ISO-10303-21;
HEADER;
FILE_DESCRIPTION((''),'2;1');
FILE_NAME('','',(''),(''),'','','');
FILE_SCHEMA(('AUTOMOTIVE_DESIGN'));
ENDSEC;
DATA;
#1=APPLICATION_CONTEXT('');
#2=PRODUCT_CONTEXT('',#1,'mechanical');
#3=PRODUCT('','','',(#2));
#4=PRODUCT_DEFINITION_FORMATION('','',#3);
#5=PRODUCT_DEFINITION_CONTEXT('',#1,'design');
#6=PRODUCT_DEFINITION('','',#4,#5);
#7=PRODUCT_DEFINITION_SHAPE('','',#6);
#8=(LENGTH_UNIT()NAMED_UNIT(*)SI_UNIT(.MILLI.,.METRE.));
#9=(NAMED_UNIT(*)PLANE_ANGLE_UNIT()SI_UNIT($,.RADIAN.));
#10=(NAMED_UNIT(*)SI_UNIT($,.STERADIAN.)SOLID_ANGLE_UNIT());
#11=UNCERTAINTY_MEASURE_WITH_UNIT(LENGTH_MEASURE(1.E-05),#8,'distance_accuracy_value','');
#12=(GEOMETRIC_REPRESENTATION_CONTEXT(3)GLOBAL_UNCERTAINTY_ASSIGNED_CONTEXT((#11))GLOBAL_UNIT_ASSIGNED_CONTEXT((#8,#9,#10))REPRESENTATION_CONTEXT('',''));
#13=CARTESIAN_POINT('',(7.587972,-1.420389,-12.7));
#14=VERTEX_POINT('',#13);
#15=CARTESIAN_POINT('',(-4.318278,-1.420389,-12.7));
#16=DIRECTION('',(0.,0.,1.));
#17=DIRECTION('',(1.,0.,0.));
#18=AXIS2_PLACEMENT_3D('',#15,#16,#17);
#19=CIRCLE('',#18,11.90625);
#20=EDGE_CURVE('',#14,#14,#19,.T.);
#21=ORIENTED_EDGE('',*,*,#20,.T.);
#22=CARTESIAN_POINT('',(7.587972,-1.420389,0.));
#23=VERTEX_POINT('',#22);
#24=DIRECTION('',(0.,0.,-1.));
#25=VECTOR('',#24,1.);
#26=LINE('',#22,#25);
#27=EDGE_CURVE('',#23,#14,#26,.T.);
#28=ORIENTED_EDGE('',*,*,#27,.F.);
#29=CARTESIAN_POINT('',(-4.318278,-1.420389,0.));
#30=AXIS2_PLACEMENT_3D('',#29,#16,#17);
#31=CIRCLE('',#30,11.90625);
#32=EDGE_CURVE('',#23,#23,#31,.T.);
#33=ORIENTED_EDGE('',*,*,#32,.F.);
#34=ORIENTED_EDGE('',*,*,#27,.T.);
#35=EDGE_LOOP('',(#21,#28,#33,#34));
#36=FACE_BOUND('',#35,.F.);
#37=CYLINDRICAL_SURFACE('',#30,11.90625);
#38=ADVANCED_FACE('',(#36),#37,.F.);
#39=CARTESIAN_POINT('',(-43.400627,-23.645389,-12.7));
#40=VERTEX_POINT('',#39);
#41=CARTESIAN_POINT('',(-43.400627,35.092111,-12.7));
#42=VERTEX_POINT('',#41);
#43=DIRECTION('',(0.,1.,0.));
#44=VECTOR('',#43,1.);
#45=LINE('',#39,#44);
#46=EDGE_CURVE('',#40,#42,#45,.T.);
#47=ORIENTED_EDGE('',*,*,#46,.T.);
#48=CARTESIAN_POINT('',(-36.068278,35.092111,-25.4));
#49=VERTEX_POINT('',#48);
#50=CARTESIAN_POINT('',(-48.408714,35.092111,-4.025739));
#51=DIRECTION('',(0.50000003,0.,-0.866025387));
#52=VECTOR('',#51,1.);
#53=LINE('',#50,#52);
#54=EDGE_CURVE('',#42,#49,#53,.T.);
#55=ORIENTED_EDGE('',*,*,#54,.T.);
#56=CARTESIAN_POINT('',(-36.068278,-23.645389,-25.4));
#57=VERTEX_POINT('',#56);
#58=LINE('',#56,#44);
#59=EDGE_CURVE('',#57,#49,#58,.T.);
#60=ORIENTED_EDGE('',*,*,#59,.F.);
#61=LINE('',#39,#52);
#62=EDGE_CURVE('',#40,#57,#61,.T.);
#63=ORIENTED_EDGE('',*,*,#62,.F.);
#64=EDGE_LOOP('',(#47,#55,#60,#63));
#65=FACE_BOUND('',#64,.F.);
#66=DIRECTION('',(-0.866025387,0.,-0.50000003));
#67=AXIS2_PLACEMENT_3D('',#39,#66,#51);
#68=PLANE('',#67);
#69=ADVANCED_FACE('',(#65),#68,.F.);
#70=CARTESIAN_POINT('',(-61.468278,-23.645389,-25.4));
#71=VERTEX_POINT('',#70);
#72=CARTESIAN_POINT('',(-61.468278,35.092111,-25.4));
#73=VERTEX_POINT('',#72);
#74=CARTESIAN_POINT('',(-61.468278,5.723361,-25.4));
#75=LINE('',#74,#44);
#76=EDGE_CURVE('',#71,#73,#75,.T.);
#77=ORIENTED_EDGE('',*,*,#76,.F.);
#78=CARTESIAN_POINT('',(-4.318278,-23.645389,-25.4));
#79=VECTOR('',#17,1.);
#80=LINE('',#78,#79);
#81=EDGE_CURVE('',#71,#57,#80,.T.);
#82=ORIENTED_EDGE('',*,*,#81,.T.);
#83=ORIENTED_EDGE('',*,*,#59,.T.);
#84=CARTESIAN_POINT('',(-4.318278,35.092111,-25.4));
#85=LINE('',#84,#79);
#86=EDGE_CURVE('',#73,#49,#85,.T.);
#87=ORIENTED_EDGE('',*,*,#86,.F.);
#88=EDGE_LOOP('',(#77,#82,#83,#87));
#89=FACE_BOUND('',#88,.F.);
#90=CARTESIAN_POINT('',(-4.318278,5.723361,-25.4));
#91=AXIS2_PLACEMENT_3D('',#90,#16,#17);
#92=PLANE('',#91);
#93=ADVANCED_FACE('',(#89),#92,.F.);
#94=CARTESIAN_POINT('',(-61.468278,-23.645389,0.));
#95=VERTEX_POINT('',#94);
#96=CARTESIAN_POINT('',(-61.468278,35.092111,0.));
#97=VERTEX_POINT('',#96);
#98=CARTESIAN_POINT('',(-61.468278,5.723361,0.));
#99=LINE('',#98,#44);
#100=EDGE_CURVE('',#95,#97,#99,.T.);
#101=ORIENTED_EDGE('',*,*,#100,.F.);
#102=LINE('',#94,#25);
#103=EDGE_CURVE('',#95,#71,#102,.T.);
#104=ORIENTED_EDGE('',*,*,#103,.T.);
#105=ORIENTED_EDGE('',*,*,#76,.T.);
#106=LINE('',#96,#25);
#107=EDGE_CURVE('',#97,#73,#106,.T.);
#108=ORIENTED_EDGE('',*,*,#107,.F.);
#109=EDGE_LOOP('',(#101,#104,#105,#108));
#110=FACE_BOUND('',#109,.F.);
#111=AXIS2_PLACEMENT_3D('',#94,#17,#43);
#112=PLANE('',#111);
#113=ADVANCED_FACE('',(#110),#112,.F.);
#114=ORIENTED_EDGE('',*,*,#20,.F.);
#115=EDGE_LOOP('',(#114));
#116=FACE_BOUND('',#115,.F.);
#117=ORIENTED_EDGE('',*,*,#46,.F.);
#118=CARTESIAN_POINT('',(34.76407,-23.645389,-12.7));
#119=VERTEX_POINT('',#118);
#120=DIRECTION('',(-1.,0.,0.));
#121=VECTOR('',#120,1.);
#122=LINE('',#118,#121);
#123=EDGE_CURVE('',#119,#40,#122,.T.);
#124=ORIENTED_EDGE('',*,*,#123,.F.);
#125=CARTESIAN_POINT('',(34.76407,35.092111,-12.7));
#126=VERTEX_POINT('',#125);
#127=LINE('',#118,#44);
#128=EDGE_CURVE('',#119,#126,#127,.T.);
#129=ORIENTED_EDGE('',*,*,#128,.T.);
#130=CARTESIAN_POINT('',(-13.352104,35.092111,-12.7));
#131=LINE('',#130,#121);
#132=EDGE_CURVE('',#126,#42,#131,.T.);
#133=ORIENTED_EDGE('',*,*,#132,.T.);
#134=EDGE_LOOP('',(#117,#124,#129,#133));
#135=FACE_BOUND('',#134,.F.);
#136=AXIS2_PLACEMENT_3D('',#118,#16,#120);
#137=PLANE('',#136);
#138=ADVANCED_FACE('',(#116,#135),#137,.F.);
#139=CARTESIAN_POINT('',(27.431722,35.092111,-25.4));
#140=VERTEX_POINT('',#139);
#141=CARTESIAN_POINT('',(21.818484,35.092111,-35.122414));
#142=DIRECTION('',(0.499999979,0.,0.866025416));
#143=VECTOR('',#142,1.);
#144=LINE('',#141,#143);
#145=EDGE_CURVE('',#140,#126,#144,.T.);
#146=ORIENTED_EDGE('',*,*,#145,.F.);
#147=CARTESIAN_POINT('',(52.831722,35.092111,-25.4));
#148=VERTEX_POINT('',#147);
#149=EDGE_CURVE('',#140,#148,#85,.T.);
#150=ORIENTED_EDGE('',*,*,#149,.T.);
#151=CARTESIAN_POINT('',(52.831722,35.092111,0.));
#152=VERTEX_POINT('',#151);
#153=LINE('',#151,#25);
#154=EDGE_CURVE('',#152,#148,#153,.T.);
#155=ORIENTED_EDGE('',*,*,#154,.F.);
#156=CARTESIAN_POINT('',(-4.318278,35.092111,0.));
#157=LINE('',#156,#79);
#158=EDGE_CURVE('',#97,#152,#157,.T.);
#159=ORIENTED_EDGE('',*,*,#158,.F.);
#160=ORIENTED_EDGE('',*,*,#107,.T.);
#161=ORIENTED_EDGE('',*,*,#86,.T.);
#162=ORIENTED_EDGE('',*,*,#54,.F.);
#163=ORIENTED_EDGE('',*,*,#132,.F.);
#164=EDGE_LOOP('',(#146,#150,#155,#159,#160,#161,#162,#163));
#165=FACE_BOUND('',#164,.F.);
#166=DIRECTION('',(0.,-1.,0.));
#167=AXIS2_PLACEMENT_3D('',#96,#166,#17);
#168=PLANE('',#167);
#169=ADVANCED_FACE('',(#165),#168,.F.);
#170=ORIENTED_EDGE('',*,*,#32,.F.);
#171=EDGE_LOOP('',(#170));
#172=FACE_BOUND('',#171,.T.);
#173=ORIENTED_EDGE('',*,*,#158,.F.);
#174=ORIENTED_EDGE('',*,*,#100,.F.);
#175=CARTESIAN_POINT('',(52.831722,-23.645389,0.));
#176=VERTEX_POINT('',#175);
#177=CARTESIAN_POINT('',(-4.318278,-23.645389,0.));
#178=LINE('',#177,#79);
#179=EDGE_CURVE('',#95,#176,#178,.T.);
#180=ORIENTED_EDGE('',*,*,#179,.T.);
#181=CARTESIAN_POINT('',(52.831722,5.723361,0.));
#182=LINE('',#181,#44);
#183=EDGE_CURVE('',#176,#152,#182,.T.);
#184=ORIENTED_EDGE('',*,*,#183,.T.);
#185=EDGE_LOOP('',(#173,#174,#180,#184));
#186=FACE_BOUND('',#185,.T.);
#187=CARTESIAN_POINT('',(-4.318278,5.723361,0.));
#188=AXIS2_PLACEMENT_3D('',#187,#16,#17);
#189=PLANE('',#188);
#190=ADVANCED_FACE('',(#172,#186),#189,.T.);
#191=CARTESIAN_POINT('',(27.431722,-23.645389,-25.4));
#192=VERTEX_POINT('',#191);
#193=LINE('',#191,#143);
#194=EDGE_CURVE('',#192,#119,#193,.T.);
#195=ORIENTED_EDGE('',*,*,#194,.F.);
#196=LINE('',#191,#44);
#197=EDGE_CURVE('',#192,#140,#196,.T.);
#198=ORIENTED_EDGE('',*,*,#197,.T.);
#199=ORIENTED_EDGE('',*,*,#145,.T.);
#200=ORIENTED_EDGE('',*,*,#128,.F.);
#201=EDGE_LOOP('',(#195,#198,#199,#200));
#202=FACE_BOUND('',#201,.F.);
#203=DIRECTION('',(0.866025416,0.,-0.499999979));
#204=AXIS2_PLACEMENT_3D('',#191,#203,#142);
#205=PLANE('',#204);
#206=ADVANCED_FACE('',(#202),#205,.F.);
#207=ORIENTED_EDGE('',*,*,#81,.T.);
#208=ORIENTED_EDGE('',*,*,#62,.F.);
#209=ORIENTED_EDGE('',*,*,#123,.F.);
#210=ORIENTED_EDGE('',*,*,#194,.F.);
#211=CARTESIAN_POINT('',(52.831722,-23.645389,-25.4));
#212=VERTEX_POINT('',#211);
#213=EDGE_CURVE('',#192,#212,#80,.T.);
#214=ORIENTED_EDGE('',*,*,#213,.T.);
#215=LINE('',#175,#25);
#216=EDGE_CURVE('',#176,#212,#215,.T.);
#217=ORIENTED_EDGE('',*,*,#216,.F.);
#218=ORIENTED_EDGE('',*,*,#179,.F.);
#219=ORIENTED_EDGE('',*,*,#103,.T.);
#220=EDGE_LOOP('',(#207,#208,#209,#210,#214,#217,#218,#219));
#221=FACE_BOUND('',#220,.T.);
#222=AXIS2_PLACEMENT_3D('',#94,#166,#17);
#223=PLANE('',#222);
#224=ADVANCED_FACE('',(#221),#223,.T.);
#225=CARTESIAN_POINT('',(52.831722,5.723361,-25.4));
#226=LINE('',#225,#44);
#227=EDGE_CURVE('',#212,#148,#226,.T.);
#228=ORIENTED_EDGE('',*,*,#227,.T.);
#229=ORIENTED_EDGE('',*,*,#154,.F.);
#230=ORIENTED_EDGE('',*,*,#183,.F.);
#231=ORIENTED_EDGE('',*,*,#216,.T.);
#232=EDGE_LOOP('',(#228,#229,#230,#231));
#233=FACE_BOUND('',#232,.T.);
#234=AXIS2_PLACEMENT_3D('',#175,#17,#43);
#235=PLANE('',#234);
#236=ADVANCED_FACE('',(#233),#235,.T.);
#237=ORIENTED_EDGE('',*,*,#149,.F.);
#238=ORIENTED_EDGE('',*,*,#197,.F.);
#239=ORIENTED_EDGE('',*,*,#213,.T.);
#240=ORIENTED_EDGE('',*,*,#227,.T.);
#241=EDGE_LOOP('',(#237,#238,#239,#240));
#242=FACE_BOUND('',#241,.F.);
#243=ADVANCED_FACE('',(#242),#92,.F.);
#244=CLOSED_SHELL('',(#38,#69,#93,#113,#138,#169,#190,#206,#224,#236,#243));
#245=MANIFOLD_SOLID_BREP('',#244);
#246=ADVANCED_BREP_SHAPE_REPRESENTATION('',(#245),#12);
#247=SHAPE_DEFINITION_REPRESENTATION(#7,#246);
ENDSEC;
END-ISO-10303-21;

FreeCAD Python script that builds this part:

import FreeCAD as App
import Part
import Sketcher
from FreeCAD import Vector
Q = App.Units.Quantity


def add_polygon(sketch, points):
    """Adds a closed chain of lines whose ends are joined by coincident constraints."""
    first, n = sketch.GeometryCount, len(points)
    for a, b in zip(points, points[1:] + points[:1]):
        sketch.addGeometry(Part.LineSegment(App.Vector(*a, 0), App.Vector(*b, 0)), False)
    for i in range(n):
        sketch.addConstraint(Sketcher.Constraint("Coincident", first + i, 2, first + (i + 1) % n, 1))

doc = App.newDocument("Part")
body = doc.addObject("PartDesign::Body", "Body")

# Sketch on XY plane
sketch1 = body.newObject("Sketcher::SketchObject", "Sketch")
sketch1.AttachmentSupport = (doc.getObject("XY_Plane"), [""])
sketch1.MapMode = "FlatFace"
add_polygon(sketch1, [(-61, 35), (-61, -24), (53, -24), (53, 35)])  # lines 0-3
sketch1.addConstraint([
    Sketcher.Constraint("Vertical", 0),
    Sketcher.Constraint("Horizontal", 1),
    Sketcher.Constraint("Vertical", 2),
    Sketcher.Constraint("Horizontal", 3),
    Sketcher.Constraint("DistanceX", 1, 1, 1, 2, Q("4.5 in")),
    Sketcher.Constraint("DistanceY", 0, 2, 0, 1, Q("2.3125 in")),
    Sketcher.Constraint("DistanceY", 0, 2, -1, 1, Q("23.645389 mm")),
    Sketcher.Constraint("DistanceX", 0, 2, -1, 1, Q("61.468278 mm")),
])
pad1 = body.newObject("PartDesign::Pad", "Pad")
pad1.Profile = sketch1
pad1.Length = Q("1 in")
pad1.Reversed = True

# Sketch on XZ plane
sketch2 = body.newObject("Sketcher::SketchObject", "Sketch001")
sketch2.AttachmentSupport = (doc.getObject("XZ_Plane"), [""])
sketch2.MapMode = "FlatFace"
sketch2.AttachmentOffset = App.Placement(Vector(0, 0, 23.645389), App.Rotation())
add_polygon(sketch2, [(-43, -13), (-36, -25), (27, -25), (35, -13)])  # lines 0-3
sketch2.addConstraint([
    Sketcher.Constraint("Horizontal", 1),
    Sketcher.Constraint("Horizontal", 3),
    Sketcher.Constraint("Equal", 0, 2),
    Sketcher.Constraint("DistanceX", 1, 1, 1, 2, Q("2.5 in")),
    Sketcher.Constraint("DistanceY", 0, 2, -1, 1, Q("1 in")),
    Sketcher.Constraint("Angle", 0, Q("-59.999998 deg")),
    Sketcher.Constraint("DistanceY", 2, 2, -1, 1, Q("0.5 in")),
    Sketcher.Constraint("DistanceX", -1, 1, 2, 2, Q("34.76407 mm")),
])
pocket1 = body.newObject("PartDesign::Pocket", "Pocket")
pocket1.Profile = sketch2
pocket1.Length = Q("2.77 in")

# Sketch on XY plane
sketch3 = body.newObject("Sketcher::SketchObject", "Sketch002")
sketch3.AttachmentSupport = (doc.getObject("XY_Plane"), [""])
sketch3.MapMode = "FlatFace"
sketch3.addGeometry(Part.Circle(Vector(-4, -1, 0), Vector(0, 0, 1), 12), False)
sketch3.addConstraint([
    Sketcher.Constraint("Diameter", 0, Q("0.9375 in")),
    Sketcher.Constraint("DistanceX", 0, 3, -1, 1, Q("4.318278 mm")),
    Sketcher.Constraint("DistanceY", 0, 3, -1, 1, Q("1.420389 mm")),
])
pocket2 = body.newObject("PartDesign::Pocket", "Pocket001")
pocket2.Profile = sketch3
pocket2.Length = Q("0.98 in")

doc.recompute()
